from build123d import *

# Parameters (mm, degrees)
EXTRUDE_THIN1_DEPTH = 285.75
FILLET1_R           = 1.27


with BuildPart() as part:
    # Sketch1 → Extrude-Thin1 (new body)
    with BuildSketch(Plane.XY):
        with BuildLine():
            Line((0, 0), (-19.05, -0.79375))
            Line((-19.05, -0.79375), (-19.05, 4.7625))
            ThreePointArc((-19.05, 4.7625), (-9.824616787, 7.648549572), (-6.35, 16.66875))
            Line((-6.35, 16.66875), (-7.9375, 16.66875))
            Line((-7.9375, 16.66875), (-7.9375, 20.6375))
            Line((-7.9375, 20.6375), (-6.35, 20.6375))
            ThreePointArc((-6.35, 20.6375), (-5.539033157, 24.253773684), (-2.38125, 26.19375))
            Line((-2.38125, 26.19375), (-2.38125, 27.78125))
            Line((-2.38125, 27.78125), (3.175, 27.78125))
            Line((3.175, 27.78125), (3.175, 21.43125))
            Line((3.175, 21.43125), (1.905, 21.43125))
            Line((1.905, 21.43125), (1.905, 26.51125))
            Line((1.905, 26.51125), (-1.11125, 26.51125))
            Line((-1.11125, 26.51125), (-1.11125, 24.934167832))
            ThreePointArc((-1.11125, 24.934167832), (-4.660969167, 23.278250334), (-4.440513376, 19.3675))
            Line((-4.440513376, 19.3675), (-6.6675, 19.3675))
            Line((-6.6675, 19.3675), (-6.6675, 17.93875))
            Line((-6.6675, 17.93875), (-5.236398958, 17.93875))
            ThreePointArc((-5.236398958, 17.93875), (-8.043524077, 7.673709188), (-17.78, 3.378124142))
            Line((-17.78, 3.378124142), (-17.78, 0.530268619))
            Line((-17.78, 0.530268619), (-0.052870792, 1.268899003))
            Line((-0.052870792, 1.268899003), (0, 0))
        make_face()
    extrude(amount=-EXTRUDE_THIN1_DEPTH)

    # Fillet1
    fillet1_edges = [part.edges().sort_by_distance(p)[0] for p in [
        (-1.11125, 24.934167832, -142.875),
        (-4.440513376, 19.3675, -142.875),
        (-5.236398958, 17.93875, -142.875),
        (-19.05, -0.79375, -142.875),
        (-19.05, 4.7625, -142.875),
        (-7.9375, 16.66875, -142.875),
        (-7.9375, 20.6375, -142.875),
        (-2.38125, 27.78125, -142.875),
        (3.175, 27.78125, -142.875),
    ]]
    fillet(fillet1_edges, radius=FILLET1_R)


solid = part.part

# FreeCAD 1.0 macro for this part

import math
import FreeCAD as App
import Part
import Sketcher
Q = App.Units.Quantity


def edges_at(feature, points):
    """Names of the edges that pass closest to the given points."""
    edges = feature.Shape.Edges
    near = lambda p: min(range(len(edges)), key=lambda i: edges[i].distToShape(Part.Vertex(*p))[0])
    return sorted({f"Edge{near(p) + 1}" for p in points})

doc = App.newDocument("Part")
body = doc.addObject("PartDesign::Body", "Body")

# Sketch on XY plane
sketch1 = body.newObject("Sketcher::SketchObject", "Sketch")
sketch1.AttachmentSupport = (doc.getObject("XY_Plane"), [""])
sketch1.MapMode = "FlatFace"
sketch1.addGeometry([
    Part.LineSegment(App.Vector(-19.1, -0.8, 0), App.Vector(0, 0, 0)),  # 0
    Part.LineSegment(App.Vector(0, 0, 0), App.Vector(-0.1, 1.3, 0)),  # 1
    Part.LineSegment(App.Vector(-0.1, 1.3, 0), App.Vector(-17.8, 0.5, 0)),  # 2
    Part.LineSegment(App.Vector(-17.8, 0.5, 0), App.Vector(-17.8, 3.4, 0)),  # 3
    Part.ArcOfCircle(Part.Circle(App.Vector(-17.4, 15.8, 0), App.Vector(0, 0, 1), 12.4), math.radians(-92), math.radians(10)),  # 4
    Part.LineSegment(App.Vector(-5.2, 17.9, 0), App.Vector(-6.7, 17.9, 0)),  # 5
    Part.LineSegment(App.Vector(-6.7, 17.9, 0), App.Vector(-6.7, 19.4, 0)),  # 6
    Part.LineSegment(App.Vector(-6.7, 19.4, 0), App.Vector(-4.4, 19.4, 0)),  # 7
    Part.ArcOfCircle(Part.Circle(App.Vector(-1.7, 21.5, 0), App.Vector(0, 0, 1), 3.5), math.radians(81), math.radians(217)),  # 8
    Part.LineSegment(App.Vector(-1.1, 24.9, 0), App.Vector(-1.1, 26.5, 0)),  # 9
    Part.LineSegment(App.Vector(-1.1, 26.5, 0), App.Vector(1.9, 26.5, 0)),  # 10
    Part.LineSegment(App.Vector(1.9, 26.5, 0), App.Vector(1.9, 21.4, 0)),  # 11
    Part.LineSegment(App.Vector(1.9, 21.4, 0), App.Vector(3.2, 21.4, 0)),  # 12
    Part.LineSegment(App.Vector(3.2, 21.4, 0), App.Vector(3.2, 27.8, 0)),  # 13
    Part.LineSegment(App.Vector(3.2, 27.8, 0), App.Vector(-2.4, 27.8, 0)),  # 14
    Part.LineSegment(App.Vector(-2.4, 27.8, 0), App.Vector(-2.4, 26.2, 0)),  # 15
    Part.ArcOfCircle(Part.Circle(App.Vector(-1.7, 21.5, 0), App.Vector(0, 0, 1), 4.8), math.radians(99), math.radians(190)),  # 16
    Part.LineSegment(App.Vector(-6.3, 20.6, 0), App.Vector(-7.9, 20.6, 0)),  # 17
    Part.LineSegment(App.Vector(-7.9, 20.6, 0), App.Vector(-7.9, 16.7, 0)),  # 18
    Part.LineSegment(App.Vector(-7.9, 16.7, 0), App.Vector(-6.3, 16.7, 0)),  # 19
    Part.ArcOfCircle(Part.Circle(App.Vector(-17.4, 15.8, 0), App.Vector(0, 0, 1), 11.1), math.radians(-98), math.radians(5)),  # 20
    Part.LineSegment(App.Vector(-19.1, 4.8, 0), App.Vector(-19.1, -0.8, 0)),  # 21
], False)
sketch1.addConstraint([
    Sketcher.Constraint("Coincident", 0, 2, 1, 1),
    Sketcher.Constraint("Coincident", 1, 2, 2, 1),
    Sketcher.Constraint("Coincident", 2, 2, 3, 1),
    Sketcher.Constraint("Coincident", 3, 2, 4, 1),
    Sketcher.Constraint("Coincident", 4, 2, 5, 1),
    Sketcher.Constraint("Coincident", 5, 2, 6, 1),
    Sketcher.Constraint("Coincident", 6, 2, 7, 1),
    Sketcher.Constraint("Coincident", 7, 2, 8, 2),
    Sketcher.Constraint("Coincident", 8, 1, 9, 1),
    Sketcher.Constraint("Coincident", 9, 2, 10, 1),
    Sketcher.Constraint("Coincident", 10, 2, 11, 1),
    Sketcher.Constraint("Coincident", 11, 2, 12, 1),
    Sketcher.Constraint("Coincident", 12, 2, 13, 1),
    Sketcher.Constraint("Coincident", 13, 2, 14, 1),
    Sketcher.Constraint("Coincident", 14, 2, 15, 1),
    Sketcher.Constraint("Coincident", 15, 2, 16, 1),
    Sketcher.Constraint("Coincident", 16, 2, 17, 1),
    Sketcher.Constraint("Coincident", 17, 2, 18, 1),
    Sketcher.Constraint("Coincident", 18, 2, 19, 1),
    Sketcher.Constraint("Coincident", 19, 2, 20, 2),
    Sketcher.Constraint("Coincident", 20, 1, 21, 1),
    Sketcher.Constraint("Coincident", 21, 2, 0, 1),
    Sketcher.Constraint("Vertical", 3),
    Sketcher.Constraint("Horizontal", 5),
    Sketcher.Constraint("Vertical", 6),
    Sketcher.Constraint("Horizontal", 7),
    Sketcher.Constraint("Vertical", 9),
    Sketcher.Constraint("Horizontal", 10),
    Sketcher.Constraint("Vertical", 11),
    Sketcher.Constraint("Horizontal", 12),
    Sketcher.Constraint("Vertical", 13),
    Sketcher.Constraint("Horizontal", 14),
    Sketcher.Constraint("Vertical", 15),
    Sketcher.Constraint("Horizontal", 17),
    Sketcher.Constraint("Vertical", 18),
    Sketcher.Constraint("Horizontal", 19),
    Sketcher.Constraint("Vertical", 21),
    Sketcher.Constraint("Coincident", 0, 2, -1, 1),
    Sketcher.Constraint("Coincident", 16, 3, 8, 3),
    Sketcher.Constraint("Coincident", 20, 3, 4, 3),
    Sketcher.Constraint("Perpendicular", 0, 1),
    Sketcher.Constraint("Perpendicular", 1, 2),
    Sketcher.Constraint("Vertical", 16, 2, 19, 2),
    Sketcher.Constraint("Equal", 19, 15),
    Sketcher.Constraint("Equal", 14, 21),
    Sketcher.Constraint("DistanceY", 11, 2, 11, 1, Q("0.2 in")),
    Sketcher.Constraint("Radius", 16, Q("0.1875 in")),
    Sketcher.Constraint("Radius", 20, Q("0.4375 in")),
    Sketcher.Constraint("DistanceX", 12, 1, 12, 2, Q("0.05 in")),
    Sketcher.Constraint("DistanceY", 13, 1, 13, 2, Q("0.25 in")),
    Sketcher.Constraint("DistanceX", 2, 2, -1, 1, Q("0.7 in")),
    Sketcher.Constraint("Radius", 4, Q("0.4875 in")),
    Sketcher.Constraint("Radius", 8, Q("0.1375 in")),
    Sketcher.Constraint("Distance", 1, Q("0.05 in")),
    Sketcher.Constraint("DistanceX", 14, 2, 14, 1, Q("0.21875 in")),
    Sketcher.Constraint("DistanceX", 17, 2, 17, 1, Q("0.0625 in")),
    Sketcher.Constraint("DistanceY", 18, 2, 18, 1, Q("0.15625 in")),
    Sketcher.Constraint("DistanceX", 16, 2, -1, 1, Q("0.25 in")),
    Sketcher.Constraint("DistanceX", 20, 1, -1, 1, Q("0.75 in")),
    Sketcher.Constraint("DistanceX", 14, 2, 9, 2, Q("0.05 in")),
    Sketcher.Constraint("DistanceY", 6, 2, 16, 2, Q("0.05 in")),
    Sketcher.Constraint("DistanceX", 17, 2, 6, 2, Q("0.05 in")),
    Sketcher.Constraint("DistanceY", 18, 2, 5, 2, Q("0.05 in")),
    Sketcher.Constraint("DistanceX", -1, 1, 10, 2, Q("0.075 in")),
    Sketcher.Constraint("DistanceY", -1, 1, 11, 2, Q("0.84375 in")),
    Sketcher.Constraint("DistanceY", -1, 1, 16, 2, Q("0.8125 in")),
    Sketcher.Constraint("DistanceY", -1, 1, 20, 1, Q("0.1875 in")),
])
pad1 = body.newObject("PartDesign::Pad", "Pad")
pad1.Profile = sketch1
pad1.Length = Q("11.25 in")
pad1.Reversed = True
doc.recompute()

fillet = body.newObject("PartDesign::Fillet", "Fillet")
fillet.Base = (pad1, edges_at(pad1, [
    (-1.111, 24.934, -142.875),
    (-4.441, 19.367, -142.875),
    (-5.236, 17.939, -142.875),
    (-19.05, -0.794, -142.875),
    (-19.05, 4.763, -142.875),
    (-7.938, 16.669, -142.875),
    (-7.938, 20.637, -142.875),
    (-2.381, 27.781, -142.875),
    (3.175, 27.781, -142.875),
]))
fillet.Radius = Q("0.05 in")

doc.recompute()
